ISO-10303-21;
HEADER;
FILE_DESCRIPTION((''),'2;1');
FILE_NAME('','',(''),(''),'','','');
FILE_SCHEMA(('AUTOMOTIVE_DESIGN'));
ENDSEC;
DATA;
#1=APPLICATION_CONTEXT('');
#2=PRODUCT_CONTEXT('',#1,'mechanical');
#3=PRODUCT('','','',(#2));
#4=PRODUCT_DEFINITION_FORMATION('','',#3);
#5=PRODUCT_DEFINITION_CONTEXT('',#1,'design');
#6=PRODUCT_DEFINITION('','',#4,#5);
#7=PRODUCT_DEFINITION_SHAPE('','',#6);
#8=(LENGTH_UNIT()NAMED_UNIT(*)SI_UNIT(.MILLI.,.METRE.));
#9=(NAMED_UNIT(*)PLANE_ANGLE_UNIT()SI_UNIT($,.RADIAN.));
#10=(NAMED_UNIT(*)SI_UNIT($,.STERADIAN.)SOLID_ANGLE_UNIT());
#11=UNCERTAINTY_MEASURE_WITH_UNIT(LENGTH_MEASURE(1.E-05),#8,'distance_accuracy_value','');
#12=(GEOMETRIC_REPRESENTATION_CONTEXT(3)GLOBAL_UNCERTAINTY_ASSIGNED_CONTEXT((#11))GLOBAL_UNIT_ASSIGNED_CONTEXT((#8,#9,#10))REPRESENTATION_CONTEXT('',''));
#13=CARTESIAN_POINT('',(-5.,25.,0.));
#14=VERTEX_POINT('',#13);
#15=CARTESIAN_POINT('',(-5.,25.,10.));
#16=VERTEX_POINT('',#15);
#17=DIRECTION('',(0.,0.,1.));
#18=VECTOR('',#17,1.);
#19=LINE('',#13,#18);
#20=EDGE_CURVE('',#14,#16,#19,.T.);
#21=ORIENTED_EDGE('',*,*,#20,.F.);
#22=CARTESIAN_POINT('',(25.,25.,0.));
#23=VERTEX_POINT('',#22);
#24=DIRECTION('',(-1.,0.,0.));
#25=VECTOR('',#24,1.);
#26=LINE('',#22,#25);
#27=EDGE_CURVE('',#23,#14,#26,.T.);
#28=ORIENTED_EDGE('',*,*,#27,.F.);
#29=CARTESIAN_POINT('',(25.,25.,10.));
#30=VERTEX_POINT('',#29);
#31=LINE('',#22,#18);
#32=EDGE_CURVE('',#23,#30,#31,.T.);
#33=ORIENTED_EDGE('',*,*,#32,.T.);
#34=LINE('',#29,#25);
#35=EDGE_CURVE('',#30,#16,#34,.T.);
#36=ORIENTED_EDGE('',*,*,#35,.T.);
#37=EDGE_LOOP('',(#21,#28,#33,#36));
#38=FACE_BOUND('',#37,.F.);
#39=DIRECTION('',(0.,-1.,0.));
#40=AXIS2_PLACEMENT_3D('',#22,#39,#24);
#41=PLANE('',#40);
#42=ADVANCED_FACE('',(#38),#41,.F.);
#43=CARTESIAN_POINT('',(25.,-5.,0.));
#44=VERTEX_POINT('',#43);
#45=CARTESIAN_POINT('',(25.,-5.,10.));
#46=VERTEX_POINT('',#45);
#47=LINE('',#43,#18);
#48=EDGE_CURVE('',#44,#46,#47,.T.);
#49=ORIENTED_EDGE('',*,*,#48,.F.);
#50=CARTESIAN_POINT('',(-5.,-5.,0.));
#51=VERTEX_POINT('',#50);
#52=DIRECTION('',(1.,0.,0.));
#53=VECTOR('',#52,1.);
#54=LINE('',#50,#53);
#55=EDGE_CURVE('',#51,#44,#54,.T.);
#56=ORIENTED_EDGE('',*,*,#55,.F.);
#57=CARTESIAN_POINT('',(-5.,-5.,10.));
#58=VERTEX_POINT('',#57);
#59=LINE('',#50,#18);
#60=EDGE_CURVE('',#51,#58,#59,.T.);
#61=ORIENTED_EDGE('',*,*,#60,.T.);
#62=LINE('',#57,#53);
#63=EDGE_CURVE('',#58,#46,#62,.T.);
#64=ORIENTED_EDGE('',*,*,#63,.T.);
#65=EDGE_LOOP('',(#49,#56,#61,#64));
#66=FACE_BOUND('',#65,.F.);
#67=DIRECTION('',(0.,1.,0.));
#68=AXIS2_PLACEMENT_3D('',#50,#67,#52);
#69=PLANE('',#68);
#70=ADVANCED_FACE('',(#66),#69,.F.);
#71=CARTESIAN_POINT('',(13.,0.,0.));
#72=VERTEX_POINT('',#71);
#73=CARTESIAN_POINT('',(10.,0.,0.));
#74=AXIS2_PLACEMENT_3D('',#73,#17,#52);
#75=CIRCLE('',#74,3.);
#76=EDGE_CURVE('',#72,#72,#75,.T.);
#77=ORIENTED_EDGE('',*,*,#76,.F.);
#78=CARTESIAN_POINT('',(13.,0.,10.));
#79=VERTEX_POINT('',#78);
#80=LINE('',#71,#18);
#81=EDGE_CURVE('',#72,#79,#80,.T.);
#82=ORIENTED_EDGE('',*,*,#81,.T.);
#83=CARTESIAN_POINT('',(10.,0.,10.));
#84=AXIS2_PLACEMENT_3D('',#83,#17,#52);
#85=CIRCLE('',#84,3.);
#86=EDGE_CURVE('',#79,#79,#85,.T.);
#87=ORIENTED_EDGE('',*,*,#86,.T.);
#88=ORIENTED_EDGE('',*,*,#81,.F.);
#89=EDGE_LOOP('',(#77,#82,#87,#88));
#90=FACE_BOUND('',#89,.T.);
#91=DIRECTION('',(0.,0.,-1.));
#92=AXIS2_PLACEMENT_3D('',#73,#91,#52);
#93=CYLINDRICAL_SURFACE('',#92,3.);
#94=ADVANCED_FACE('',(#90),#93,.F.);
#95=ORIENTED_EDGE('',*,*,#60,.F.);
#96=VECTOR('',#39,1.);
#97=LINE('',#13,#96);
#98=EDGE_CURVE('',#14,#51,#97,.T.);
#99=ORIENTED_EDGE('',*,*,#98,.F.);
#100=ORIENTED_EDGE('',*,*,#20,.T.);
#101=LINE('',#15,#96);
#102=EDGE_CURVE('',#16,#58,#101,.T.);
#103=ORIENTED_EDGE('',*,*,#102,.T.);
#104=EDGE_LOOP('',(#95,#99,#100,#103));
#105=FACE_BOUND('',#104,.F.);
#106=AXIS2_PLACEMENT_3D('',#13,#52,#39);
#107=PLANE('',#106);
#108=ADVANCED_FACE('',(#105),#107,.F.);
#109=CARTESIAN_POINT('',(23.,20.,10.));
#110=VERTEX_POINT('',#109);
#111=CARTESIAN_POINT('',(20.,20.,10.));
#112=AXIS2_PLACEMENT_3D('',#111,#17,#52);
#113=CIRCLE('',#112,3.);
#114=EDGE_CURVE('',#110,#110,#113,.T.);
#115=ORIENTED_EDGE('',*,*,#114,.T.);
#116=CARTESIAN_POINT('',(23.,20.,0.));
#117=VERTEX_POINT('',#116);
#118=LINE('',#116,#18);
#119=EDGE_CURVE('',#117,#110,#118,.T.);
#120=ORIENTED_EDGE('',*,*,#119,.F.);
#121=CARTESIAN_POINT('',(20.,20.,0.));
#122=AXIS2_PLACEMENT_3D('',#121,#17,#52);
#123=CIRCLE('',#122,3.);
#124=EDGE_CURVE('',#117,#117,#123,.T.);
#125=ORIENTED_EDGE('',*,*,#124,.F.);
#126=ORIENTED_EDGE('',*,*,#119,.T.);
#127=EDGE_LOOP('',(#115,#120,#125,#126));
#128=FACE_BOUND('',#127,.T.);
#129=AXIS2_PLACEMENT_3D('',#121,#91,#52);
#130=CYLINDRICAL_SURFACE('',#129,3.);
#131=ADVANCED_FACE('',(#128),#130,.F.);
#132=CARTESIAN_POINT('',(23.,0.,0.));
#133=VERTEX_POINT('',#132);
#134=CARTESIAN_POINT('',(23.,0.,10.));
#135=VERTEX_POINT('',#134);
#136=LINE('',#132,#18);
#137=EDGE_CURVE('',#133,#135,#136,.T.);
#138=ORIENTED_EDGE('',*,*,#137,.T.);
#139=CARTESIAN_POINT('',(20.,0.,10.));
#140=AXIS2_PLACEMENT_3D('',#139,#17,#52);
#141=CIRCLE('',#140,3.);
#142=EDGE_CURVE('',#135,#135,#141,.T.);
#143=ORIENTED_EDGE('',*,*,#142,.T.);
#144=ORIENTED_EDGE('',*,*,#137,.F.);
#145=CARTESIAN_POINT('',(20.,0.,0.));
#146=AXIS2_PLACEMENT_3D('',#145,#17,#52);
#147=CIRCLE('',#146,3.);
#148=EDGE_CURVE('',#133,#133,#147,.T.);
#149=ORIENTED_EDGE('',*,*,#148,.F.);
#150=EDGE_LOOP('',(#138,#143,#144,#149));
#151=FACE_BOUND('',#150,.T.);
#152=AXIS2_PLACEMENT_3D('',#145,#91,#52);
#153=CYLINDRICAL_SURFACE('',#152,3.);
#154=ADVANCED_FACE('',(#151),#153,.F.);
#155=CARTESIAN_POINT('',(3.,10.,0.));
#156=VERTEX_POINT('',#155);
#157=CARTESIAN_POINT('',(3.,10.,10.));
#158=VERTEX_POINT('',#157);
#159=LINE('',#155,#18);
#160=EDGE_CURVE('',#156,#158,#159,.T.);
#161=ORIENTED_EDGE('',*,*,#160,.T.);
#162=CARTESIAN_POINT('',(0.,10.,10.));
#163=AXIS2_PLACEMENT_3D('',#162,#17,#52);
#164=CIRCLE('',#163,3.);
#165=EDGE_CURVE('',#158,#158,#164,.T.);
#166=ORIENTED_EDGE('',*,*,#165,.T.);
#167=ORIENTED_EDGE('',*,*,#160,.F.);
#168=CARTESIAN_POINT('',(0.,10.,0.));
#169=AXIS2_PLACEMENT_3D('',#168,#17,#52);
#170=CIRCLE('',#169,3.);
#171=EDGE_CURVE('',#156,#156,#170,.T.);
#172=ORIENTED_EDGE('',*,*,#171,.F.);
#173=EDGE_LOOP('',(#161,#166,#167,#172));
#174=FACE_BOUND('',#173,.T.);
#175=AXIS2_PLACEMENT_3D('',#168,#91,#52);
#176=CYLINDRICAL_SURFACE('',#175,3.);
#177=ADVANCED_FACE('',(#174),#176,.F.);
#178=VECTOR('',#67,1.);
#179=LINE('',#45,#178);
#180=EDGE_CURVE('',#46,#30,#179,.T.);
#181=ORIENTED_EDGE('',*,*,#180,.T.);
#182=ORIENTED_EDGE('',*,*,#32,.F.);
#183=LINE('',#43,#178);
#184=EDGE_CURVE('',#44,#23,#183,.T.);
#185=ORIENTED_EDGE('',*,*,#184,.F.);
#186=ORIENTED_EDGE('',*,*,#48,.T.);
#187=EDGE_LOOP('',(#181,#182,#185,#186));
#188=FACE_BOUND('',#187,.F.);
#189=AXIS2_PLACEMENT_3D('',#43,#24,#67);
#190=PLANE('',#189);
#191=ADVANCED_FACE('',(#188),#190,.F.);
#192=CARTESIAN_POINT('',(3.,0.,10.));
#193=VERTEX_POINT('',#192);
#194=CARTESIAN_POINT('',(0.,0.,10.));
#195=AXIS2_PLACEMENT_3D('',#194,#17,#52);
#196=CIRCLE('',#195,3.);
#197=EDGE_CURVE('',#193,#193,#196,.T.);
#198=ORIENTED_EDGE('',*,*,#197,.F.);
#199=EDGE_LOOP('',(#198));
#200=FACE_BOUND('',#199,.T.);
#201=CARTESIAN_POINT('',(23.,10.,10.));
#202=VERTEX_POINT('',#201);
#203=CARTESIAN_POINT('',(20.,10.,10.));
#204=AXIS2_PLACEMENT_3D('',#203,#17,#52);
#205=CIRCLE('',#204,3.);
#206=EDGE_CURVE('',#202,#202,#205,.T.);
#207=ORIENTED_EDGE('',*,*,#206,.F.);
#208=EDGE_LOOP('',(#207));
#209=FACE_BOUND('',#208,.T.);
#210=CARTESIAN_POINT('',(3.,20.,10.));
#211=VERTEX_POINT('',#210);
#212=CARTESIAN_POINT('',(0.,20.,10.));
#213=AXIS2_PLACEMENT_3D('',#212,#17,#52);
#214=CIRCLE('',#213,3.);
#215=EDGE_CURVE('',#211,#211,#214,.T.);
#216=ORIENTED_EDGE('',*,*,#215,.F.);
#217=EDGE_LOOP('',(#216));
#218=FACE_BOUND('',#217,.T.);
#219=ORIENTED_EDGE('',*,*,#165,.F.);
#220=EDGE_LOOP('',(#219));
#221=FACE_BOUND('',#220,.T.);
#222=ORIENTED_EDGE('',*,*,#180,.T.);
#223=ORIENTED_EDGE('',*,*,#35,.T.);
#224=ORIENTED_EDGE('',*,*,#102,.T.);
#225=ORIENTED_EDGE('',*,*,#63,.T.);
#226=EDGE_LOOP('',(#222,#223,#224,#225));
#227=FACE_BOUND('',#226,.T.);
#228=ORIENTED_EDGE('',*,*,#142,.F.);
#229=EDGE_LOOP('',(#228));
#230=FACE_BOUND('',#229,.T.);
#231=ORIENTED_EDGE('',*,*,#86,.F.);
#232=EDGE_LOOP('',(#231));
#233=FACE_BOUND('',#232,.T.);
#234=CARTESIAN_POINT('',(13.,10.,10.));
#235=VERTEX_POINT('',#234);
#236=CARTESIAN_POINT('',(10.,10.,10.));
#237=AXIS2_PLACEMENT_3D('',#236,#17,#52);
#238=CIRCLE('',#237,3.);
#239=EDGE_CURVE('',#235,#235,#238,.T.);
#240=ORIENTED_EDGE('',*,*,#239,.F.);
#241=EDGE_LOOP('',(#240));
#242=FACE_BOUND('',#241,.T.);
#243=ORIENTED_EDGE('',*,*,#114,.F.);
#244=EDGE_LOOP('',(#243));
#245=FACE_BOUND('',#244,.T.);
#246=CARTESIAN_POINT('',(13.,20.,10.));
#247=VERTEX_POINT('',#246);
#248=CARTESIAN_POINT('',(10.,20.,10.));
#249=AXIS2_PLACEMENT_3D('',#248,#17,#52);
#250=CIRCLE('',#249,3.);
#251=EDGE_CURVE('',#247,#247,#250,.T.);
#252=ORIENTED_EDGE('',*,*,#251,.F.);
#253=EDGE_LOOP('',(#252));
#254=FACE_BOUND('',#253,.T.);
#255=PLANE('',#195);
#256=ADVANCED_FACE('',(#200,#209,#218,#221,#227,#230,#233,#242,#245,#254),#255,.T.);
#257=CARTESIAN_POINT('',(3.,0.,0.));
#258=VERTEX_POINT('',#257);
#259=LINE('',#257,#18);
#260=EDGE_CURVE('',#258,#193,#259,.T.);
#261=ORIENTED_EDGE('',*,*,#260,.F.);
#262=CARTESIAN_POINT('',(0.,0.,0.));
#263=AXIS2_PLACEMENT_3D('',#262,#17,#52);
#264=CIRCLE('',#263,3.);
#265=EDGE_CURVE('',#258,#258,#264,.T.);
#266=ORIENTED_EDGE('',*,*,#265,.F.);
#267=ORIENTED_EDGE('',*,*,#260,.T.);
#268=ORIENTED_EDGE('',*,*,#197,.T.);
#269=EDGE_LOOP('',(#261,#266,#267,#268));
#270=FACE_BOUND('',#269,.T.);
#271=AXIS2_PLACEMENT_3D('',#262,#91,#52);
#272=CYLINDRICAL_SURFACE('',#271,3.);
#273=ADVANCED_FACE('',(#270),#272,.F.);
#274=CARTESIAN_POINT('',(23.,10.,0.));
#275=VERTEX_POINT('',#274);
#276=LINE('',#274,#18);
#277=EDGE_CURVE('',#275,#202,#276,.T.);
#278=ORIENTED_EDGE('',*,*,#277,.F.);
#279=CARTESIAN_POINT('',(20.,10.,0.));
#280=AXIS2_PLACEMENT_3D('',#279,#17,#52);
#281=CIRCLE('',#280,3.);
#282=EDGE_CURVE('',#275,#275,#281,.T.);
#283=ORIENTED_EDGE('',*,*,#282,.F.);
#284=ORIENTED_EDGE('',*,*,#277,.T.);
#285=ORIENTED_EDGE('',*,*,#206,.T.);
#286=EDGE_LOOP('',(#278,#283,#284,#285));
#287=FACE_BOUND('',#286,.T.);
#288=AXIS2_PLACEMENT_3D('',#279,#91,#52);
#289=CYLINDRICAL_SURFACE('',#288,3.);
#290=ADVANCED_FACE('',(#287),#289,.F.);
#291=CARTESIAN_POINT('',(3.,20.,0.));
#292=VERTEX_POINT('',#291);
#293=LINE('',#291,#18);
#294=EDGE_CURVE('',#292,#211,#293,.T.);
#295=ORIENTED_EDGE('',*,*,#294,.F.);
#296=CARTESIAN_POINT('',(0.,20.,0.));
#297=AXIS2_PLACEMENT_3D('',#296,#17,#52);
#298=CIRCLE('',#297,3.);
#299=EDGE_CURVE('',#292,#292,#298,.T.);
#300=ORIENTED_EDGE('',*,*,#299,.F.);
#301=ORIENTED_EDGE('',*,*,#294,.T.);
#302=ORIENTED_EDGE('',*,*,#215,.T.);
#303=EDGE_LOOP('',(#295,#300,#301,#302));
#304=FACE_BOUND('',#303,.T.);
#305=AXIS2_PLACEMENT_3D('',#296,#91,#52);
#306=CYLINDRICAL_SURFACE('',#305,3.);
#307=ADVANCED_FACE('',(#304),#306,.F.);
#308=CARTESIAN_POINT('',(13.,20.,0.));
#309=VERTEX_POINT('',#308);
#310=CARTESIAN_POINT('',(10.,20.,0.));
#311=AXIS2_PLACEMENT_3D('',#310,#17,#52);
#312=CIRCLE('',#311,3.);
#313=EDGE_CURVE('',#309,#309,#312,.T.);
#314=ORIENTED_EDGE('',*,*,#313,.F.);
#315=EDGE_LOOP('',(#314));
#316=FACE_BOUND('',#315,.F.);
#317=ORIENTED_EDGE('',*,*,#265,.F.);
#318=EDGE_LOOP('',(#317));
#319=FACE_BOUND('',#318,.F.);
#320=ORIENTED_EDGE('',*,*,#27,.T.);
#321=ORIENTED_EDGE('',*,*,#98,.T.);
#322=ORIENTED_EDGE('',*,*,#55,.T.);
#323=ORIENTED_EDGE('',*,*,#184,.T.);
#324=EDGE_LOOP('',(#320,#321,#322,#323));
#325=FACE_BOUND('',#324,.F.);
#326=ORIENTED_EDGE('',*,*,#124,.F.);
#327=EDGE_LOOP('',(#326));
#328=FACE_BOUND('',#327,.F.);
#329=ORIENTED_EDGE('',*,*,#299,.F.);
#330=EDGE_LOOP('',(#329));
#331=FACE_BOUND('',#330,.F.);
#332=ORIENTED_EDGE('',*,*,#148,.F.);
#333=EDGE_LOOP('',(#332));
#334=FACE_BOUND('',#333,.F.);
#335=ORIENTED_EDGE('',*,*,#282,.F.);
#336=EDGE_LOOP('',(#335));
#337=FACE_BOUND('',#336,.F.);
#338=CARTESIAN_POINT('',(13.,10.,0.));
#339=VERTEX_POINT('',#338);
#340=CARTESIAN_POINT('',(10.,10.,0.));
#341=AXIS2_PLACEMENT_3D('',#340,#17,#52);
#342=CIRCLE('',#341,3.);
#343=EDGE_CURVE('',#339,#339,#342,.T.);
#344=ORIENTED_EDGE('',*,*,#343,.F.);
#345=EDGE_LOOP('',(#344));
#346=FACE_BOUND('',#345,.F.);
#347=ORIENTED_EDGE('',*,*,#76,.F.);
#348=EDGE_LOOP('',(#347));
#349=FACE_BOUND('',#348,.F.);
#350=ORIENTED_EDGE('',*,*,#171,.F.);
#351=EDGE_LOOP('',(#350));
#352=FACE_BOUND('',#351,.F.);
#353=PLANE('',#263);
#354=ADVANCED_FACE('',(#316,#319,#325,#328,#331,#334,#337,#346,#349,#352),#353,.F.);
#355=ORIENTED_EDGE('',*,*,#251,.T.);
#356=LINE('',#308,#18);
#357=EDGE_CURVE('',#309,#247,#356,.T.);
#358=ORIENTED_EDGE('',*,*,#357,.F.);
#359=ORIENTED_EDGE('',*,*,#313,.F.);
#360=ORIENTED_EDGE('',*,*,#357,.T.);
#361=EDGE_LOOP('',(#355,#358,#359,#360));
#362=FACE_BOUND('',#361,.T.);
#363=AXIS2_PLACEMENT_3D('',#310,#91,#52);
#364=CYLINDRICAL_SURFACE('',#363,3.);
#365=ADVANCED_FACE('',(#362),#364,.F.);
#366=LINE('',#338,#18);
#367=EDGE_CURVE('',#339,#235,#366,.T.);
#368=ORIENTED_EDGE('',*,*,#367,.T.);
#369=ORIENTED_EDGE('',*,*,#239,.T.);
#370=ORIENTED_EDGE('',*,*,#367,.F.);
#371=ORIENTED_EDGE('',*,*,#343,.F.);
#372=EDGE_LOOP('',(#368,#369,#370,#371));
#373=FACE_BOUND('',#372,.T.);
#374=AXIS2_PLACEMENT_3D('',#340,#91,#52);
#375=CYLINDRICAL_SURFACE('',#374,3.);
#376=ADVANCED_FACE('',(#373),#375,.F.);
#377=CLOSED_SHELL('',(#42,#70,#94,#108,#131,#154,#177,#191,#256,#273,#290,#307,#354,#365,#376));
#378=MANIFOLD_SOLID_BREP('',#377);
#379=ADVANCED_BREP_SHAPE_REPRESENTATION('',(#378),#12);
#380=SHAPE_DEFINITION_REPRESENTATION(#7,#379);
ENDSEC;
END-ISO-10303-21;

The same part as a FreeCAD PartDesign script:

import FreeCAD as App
import Part
import Sketcher

doc = App.newDocument("Part")
body = doc.addObject("PartDesign::Body", "Body")

sketch1 = body.newObject("Sketcher::SketchObject", "Sketch")
sketch1.AttachmentSupport = (doc.getObject("XY_Plane"), [""])
sketch1.MapMode = "FlatFace"
sketch1.addGeometry([
    Part.LineSegment(App.Vector(25, -5, 0), App.Vector(25, 25, 0)),
    Part.LineSegment(App.Vector(25, 25, 0), App.Vector(-5, 25, 0)),
    Part.LineSegment(App.Vector(-5, 25, 0), App.Vector(-5, -5, 0)),
    Part.LineSegment(App.Vector(-5, -5, 0), App.Vector(25, -5, 0)),
    Part.Circle(App.Vector(0, 0, 0), App.Vector(0, 0, 1), 3),
    Part.Circle(App.Vector(10, 0, 0), App.Vector(0, 0, 1), 3),
    Part.Circle(App.Vector(20, 0, 0), App.Vector(0, 0, 1), 3),
    Part.Circle(App.Vector(0, 10, 0), App.Vector(0, 0, 1), 3),
    Part.Circle(App.Vector(0, 20, 0), App.Vector(0, 0, 1), 3),
    Part.Circle(App.Vector(10, 10, 0), App.Vector(0, 0, 1), 3),
    Part.Circle(App.Vector(20, 10, 0), App.Vector(0, 0, 1), 3),
    Part.Circle(App.Vector(10, 20, 0), App.Vector(0, 0, 1), 3),
    Part.Circle(App.Vector(20, 20, 0), App.Vector(0, 0, 1), 3),
], False)
sketch1.addConstraint([
    Sketcher.Constraint("Coincident", 0, 2, 1, 1),
    Sketcher.Constraint("Coincident", 1, 2, 2, 1),
    Sketcher.Constraint("Coincident", 2, 2, 3, 1),
    Sketcher.Constraint("Coincident", 3, 2, 0, 1),
    Sketcher.Constraint("Vertical", 0),
    Sketcher.Constraint("Horizontal", 1),
    Sketcher.Constraint("Vertical", 2),
    Sketcher.Constraint("Horizontal", 3),
    Sketcher.Constraint("Coincident", 4, 3, -1, 1),
    Sketcher.Constraint("Equal", 4, 5),
    Sketcher.Constraint("Equal", 5, 6),
    Sketcher.Constraint("Equal", 6, 7),
    Sketcher.Constraint("Equal", 7, 8),
    Sketcher.Constraint("Equal", 8, 9),
    Sketcher.Constraint("Equal", 9, 10),
    Sketcher.Constraint("Equal", 10, 11),
    Sketcher.Constraint("Equal", 11, 12),
    Sketcher.Constraint("PointOnObject", 5, 3, -1),
    Sketcher.Constraint("PointOnObject", 6, 3, -1),
    Sketcher.Constraint("PointOnObject", 7, 3, -2),
    Sketcher.Constraint("PointOnObject", 8, 3, -2),
    Sketcher.Constraint("Horizontal", 7, 3, 9, 3),
    Sketcher.Constraint("Horizontal", 9, 3, 10, 3),
    Sketcher.Constraint("Horizontal", 8, 3, 11, 3),
    Sketcher.Constraint("Horizontal", 11, 3, 12, 3),
    Sketcher.Constraint("Vertical", 5, 3, 9, 3),
    Sketcher.Constraint("Vertical", 6, 3, 10, 3),
    Sketcher.Constraint("Vertical", 9, 3, 11, 3),
    Sketcher.Constraint("Vertical", 10, 3, 12, 3),
    Sketcher.Constraint("Equal", 3, 0),
    Sketcher.Constraint("Diameter", 4, 6.0),
    Sketcher.Constraint("DistanceX", 1, 2, 1, 1, 30.0),
    Sketcher.Constraint("DistanceX", -1, 1, 6, 3, 20.0),
    Sketcher.Constraint("DistanceY", -1, 1, 8, 3, 20.0),
    Sketcher.Constraint("DistanceX", -1, 1, 5, 3, 10.0),
    Sketcher.Constraint("DistanceY", -1, 1, 7, 3, 10.0),
    Sketcher.Constraint("DistanceX", -1, 1, 0, 2, 25.0),
    Sketcher.Constraint("DistanceY", -1, 1, 0, 2, 25.0),
])
pad1 = body.newObject("PartDesign::Pad", "Pad")
pad1.Profile = sketch1
pad1.Length = 10

doc.recompute()
